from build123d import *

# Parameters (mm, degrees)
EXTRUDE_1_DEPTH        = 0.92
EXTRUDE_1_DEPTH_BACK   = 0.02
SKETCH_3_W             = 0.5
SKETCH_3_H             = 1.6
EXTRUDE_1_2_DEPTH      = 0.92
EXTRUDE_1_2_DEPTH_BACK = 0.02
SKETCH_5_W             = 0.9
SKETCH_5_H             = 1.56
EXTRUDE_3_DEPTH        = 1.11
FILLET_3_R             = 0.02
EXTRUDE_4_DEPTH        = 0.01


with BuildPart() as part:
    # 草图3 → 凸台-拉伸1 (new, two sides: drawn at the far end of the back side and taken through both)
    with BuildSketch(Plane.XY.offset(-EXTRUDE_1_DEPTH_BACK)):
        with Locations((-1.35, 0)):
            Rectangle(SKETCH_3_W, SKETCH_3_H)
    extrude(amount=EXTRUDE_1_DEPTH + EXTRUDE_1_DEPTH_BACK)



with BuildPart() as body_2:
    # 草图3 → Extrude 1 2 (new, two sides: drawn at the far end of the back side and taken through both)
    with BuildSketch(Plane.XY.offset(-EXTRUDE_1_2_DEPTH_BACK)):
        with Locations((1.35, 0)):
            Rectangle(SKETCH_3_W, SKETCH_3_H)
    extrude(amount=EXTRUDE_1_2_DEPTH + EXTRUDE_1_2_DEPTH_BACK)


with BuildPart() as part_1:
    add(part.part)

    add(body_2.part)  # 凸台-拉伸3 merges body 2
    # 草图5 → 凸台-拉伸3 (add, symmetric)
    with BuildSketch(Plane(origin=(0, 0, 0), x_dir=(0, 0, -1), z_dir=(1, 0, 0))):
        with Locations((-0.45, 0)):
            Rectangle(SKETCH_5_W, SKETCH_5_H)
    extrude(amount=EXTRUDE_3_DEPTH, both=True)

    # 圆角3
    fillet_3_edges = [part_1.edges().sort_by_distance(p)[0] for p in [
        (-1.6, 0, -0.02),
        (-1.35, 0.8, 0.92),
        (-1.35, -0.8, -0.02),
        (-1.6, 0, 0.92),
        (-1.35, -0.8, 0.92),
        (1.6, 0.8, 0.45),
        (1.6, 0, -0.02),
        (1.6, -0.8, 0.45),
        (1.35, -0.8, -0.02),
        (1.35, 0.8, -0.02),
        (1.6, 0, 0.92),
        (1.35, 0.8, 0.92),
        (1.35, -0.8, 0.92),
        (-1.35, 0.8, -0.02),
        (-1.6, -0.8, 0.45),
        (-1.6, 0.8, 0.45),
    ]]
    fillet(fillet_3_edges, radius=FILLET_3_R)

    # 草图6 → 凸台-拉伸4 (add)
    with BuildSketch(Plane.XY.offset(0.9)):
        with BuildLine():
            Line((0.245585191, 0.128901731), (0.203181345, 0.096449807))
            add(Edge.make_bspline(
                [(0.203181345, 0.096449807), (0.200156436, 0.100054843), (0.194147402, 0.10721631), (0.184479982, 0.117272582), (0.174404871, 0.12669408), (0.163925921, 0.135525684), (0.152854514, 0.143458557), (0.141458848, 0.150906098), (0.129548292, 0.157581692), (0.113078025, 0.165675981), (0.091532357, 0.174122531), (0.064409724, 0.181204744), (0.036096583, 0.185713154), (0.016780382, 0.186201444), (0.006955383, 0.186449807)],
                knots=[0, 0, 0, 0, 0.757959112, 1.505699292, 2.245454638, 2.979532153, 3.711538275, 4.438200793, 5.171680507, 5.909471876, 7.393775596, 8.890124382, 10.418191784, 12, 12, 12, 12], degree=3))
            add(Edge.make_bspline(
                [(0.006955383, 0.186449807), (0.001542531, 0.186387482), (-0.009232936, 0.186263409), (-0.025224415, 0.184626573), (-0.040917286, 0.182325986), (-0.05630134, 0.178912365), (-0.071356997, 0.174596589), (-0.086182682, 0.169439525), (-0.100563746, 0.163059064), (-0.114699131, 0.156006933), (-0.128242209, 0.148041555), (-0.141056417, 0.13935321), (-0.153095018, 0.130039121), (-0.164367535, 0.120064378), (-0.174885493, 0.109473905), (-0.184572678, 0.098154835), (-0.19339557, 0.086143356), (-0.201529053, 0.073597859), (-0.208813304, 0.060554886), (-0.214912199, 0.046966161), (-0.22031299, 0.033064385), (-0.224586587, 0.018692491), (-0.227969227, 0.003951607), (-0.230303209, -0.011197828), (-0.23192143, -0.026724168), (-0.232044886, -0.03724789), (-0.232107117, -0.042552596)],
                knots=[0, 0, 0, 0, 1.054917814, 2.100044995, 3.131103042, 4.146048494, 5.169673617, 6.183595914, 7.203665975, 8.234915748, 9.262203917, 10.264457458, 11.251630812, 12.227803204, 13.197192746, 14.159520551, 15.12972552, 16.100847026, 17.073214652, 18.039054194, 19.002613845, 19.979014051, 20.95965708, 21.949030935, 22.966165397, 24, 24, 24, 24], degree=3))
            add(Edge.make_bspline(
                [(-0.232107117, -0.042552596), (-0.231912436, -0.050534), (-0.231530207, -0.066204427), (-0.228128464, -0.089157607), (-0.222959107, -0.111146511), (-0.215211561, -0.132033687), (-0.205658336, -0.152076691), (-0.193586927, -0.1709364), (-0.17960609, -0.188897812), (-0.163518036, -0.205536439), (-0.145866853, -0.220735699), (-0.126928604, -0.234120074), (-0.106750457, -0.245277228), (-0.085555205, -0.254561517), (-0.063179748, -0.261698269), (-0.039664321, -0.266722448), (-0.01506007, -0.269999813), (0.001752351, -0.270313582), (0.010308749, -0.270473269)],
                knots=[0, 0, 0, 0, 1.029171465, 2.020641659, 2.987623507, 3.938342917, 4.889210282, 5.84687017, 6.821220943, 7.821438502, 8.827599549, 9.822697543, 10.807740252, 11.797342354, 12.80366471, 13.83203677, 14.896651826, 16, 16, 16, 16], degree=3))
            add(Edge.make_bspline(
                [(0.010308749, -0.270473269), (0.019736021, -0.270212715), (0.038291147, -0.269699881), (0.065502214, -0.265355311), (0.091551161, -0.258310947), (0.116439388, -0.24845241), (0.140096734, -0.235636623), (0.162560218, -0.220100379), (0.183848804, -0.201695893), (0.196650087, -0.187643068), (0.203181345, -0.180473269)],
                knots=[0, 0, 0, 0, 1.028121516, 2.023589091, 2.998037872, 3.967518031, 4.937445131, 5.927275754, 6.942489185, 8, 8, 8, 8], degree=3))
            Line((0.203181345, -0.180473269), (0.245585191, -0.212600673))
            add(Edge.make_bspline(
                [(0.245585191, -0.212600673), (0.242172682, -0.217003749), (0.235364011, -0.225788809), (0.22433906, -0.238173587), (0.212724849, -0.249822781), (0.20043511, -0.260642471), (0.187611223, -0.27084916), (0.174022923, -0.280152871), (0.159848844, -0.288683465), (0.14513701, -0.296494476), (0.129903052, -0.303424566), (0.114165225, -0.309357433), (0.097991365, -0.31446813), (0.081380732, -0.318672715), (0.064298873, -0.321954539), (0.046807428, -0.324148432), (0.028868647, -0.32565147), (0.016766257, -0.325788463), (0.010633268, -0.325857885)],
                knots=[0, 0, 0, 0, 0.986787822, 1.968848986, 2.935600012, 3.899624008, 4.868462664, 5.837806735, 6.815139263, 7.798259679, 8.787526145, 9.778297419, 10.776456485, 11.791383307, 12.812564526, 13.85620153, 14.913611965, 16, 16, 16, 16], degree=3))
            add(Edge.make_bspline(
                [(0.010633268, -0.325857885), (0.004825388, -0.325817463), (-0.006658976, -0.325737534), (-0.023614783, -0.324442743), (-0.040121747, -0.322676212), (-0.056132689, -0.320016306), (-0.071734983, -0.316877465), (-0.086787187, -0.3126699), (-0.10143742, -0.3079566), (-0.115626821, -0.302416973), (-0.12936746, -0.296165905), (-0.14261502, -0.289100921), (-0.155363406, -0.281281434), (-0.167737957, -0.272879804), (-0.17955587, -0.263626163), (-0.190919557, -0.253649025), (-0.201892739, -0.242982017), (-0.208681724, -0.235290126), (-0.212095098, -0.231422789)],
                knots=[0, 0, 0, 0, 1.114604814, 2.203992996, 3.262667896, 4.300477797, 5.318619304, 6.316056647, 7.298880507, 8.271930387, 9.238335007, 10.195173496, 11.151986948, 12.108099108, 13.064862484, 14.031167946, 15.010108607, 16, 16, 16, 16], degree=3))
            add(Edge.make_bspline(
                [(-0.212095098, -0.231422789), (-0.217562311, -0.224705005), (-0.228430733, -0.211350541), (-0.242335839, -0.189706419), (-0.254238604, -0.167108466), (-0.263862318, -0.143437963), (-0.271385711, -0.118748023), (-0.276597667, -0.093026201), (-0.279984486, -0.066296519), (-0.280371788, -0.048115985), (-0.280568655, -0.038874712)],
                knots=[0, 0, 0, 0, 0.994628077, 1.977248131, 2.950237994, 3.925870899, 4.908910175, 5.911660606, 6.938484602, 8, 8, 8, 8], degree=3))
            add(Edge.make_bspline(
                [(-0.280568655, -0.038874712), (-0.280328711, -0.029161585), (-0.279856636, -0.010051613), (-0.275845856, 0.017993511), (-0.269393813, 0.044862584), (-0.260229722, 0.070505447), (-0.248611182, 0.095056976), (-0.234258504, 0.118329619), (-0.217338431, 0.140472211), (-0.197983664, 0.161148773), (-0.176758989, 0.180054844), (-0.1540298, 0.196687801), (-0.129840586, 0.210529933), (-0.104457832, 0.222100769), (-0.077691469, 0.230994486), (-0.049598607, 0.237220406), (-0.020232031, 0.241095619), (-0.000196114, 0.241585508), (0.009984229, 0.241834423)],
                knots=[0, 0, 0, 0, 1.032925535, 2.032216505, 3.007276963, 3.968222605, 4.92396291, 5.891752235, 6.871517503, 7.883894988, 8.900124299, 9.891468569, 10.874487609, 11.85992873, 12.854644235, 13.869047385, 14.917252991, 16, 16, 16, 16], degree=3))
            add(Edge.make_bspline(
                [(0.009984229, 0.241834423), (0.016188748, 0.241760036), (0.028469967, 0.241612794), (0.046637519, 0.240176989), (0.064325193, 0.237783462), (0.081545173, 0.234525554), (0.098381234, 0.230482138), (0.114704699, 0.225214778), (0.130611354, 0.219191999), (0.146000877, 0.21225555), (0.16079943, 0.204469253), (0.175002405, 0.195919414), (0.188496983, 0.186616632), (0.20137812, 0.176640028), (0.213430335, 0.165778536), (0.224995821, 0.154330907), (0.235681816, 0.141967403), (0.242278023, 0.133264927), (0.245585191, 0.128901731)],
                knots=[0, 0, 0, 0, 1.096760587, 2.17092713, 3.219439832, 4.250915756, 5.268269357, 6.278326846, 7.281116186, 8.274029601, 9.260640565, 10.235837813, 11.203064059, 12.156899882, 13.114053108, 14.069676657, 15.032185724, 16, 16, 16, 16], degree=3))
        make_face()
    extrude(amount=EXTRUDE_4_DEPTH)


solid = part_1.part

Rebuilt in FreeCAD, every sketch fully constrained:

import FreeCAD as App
import Part
import Sketcher
from FreeCAD import Vector


def edges_at(feature, points):
    """Names of the edges that pass closest to the given points."""
    edges = feature.Shape.Edges
    near = lambda p: min(range(len(edges)), key=lambda i: edges[i].distToShape(Part.Vertex(*p))[0])
    return sorted({f"Edge{near(p) + 1}" for p in points})

doc = App.newDocument("Part")
body = doc.addObject("PartDesign::Body", "Body")

# Sketch on XY plane
sketch1 = doc.addObject("Sketcher::SketchObject", "Sketch")
body.addObject(sketch1)
sketch1.AttachmentSupport = (doc.XY_Plane, [""])
sketch1.MapMode = "FlatFace"
sketch1.addGeometry(Part.LineSegment(Vector(-1.6, 0.8, 0), Vector(-1.6, -0.8, 0)), False)
sketch1.addGeometry(Part.LineSegment(Vector(-1.6, -0.8, 0), Vector(-1.1, -0.8, 0)), False)
sketch1.addGeometry(Part.LineSegment(Vector(-1.1, -0.8, 0), Vector(-1.1, 0.8, 0)), False)
sketch1.addGeometry(Part.LineSegment(Vector(-1.1, 0.8, 0), Vector(-1.6, 0.8, 0)), False)
sketch1.addConstraint(Sketcher.Constraint("Coincident", 0, 2, 1, 1))
sketch1.addConstraint(Sketcher.Constraint("Coincident", 1, 2, 2, 1))
sketch1.addConstraint(Sketcher.Constraint("Coincident", 2, 2, 3, 1))
sketch1.addConstraint(Sketcher.Constraint("Coincident", 3, 2, 0, 1))
sketch1.addConstraint(Sketcher.Constraint("Vertical", 0))
sketch1.addConstraint(Sketcher.Constraint("Horizontal", 1))
sketch1.addConstraint(Sketcher.Constraint("Vertical", 2))
sketch1.addConstraint(Sketcher.Constraint("Horizontal", 3))
sketch1.addConstraint(Sketcher.Constraint("DistanceX", 1, 1, 1, 2, 0.5))
sketch1.addConstraint(Sketcher.Constraint("DistanceY", 0, 2, 0, 1, 1.6))
sketch1.addConstraint(Sketcher.Constraint("DistanceX", 0, 2, -1, 1, 1.6))
sketch1.addConstraint(Sketcher.Constraint("DistanceY", 0, 2, -1, 1, 0.8))
pad1 = doc.addObject("PartDesign::Pad", "Pad")
body.addObject(pad1)
pad1.Profile = sketch1
pad1.Type = "TwoLengths"
pad1.Length = 0.92
pad1.Length2 = 0.02
body2 = doc.addObject("PartDesign::Body", "Body001")

# Sketch on XY plane
sketch2 = doc.addObject("Sketcher::SketchObject", "Sketch001")
body2.addObject(sketch2)
sketch2.AttachmentSupport = (doc.getObject("XY_Plane001"), [""])
sketch2.MapMode = "FlatFace"
sketch2.addGeometry(Part.LineSegment(Vector(1.1, 0.8, 0), Vector(1.1, -0.8, 0)), False)
sketch2.addGeometry(Part.LineSegment(Vector(1.1, -0.8, 0), Vector(1.6, -0.8, 0)), False)
sketch2.addGeometry(Part.LineSegment(Vector(1.6, -0.8, 0), Vector(1.6, 0.8, 0)), False)
sketch2.addGeometry(Part.LineSegment(Vector(1.6, 0.8, 0), Vector(1.1, 0.8, 0)), False)
sketch2.addConstraint(Sketcher.Constraint("Coincident", 0, 2, 1, 1))
sketch2.addConstraint(Sketcher.Constraint("Coincident", 1, 2, 2, 1))
sketch2.addConstraint(Sketcher.Constraint("Coincident", 2, 2, 3, 1))
sketch2.addConstraint(Sketcher.Constraint("Coincident", 3, 2, 0, 1))
sketch2.addConstraint(Sketcher.Constraint("Vertical", 0))
sketch2.addConstraint(Sketcher.Constraint("Horizontal", 1))
sketch2.addConstraint(Sketcher.Constraint("Vertical", 2))
sketch2.addConstraint(Sketcher.Constraint("Horizontal", 3))
sketch2.addConstraint(Sketcher.Constraint("DistanceX", 1, 1, 1, 2, 0.5))
sketch2.addConstraint(Sketcher.Constraint("DistanceY", 0, 2, 0, 1, 1.6))
sketch2.addConstraint(Sketcher.Constraint("DistanceX", -1, 1, 0, 2, 1.1))
sketch2.addConstraint(Sketcher.Constraint("DistanceY", 0, 2, -1, 1, 0.8))
pad2 = doc.addObject("PartDesign::Pad", "Pad001")
body2.addObject(pad2)
pad2.Profile = sketch2
pad2.Type = "TwoLengths"
pad2.Length = 0.92
pad2.Length2 = 0.02
body.AllowCompound = True
doc.recompute()

boolean = doc.addObject("PartDesign::Boolean", "Boolean")
body.addObject(boolean)
boolean.Type = "Fuse"
boolean.addObjects([body2])

# Sketch on YZ plane
sketch3 = doc.addObject("Sketcher::SketchObject", "Sketch002")
body.addObject(sketch3)
sketch3.AttachmentSupport = (doc.YZ_Plane, [""])
sketch3.MapMode = "FlatFace"
sketch3.addGeometry(Part.LineSegment(Vector(0.8, 0.9, 0), Vector(-0.8, 0.9, 0)), False)
sketch3.addGeometry(Part.LineSegment(Vector(-0.8, 0.9, 0), Vector(-0.8, 0, 0)), False)
sketch3.addGeometry(Part.LineSegment(Vector(-0.8, 0, 0), Vector(0.8, 0, 0)), False)
sketch3.addGeometry(Part.LineSegment(Vector(0.8, 0, 0), Vector(0.8, 0.9, 0)), False)
sketch3.addConstraint(Sketcher.Constraint("Coincident", 0, 2, 1, 1))
sketch3.addConstraint(Sketcher.Constraint("Coincident", 1, 2, 2, 1))
sketch3.addConstraint(Sketcher.Constraint("Coincident", 2, 2, 3, 1))
sketch3.addConstraint(Sketcher.Constraint("Coincident", 3, 2, 0, 1))
sketch3.addConstraint(Sketcher.Constraint("Horizontal", 0))
sketch3.addConstraint(Sketcher.Constraint("Vertical", 1))
sketch3.addConstraint(Sketcher.Constraint("Horizontal", 2))
sketch3.addConstraint(Sketcher.Constraint("Vertical", 3))
sketch3.addConstraint(Sketcher.Constraint("Symmetric", 1, 2, 2, 2, -1, 1))
sketch3.addConstraint(Sketcher.Constraint("DistanceY", 1, 2, 1, 1, 0.9))
sketch3.addConstraint(Sketcher.Constraint("DistanceX", 0, 2, 0, 1, 1.56))
pad3 = doc.addObject("PartDesign::Pad", "Pad002")
body.addObject(pad3)
pad3.Profile = sketch3
pad3.Length = 2.22
pad3.Midplane = True
doc.recompute()

fillet = doc.addObject("PartDesign::Fillet", "Fillet")
body.addObject(fillet)
fillet.Base = (pad3, edges_at(pad3, [
    (-1.6, 0, -0.02),
    (-1.35, 0.8, 0.92),
    (-1.35, -0.8, -0.02),
    (-1.6, 0, 0.92),
    (-1.35, -0.8, 0.92),
    (1.6, 0.8, 0.45),
    (1.6, 0, -0.02),
    (1.6, -0.8, 0.45),
    (1.35, -0.8, -0.02),
    (1.35, 0.8, -0.02),
    (1.6, 0, 0.92),
    (1.35, 0.8, 0.92),
    (1.35, -0.8, 0.92),
    (-1.35, 0.8, -0.02),
    (-1.6, -0.8, 0.45),
    (-1.6, 0.8, 0.45),
]))
fillet.Radius = 0.02

# Sketch on XY plane
sketch4 = doc.addObject("Sketcher::SketchObject", "Sketch003")
body.addObject(sketch4)
sketch4.AttachmentSupport = (doc.XY_Plane, [""])
sketch4.MapMode = "FlatFace"
sketch4.AttachmentOffset = App.Placement(Vector(0, 0, 0.9), App.Rotation())
sketch4.addGeometry(Part.LineSegment(Vector(0.203181, 0.09645, 0), Vector(0.245585, 0.128902, 0)), False)
sketch4.addGeometry(Part.BSplineCurve([Vector(0.009984, 0.241834, 0), Vector(0.016189, 0.24176, 0), Vector(0.02847, 0.241613, 0), Vector(0.046638, 0.240177, 0), Vector(0.064325, 0.237783, 0), Vector(0.081545, 0.234526, 0), Vector(0.098381, 0.230482, 0), Vector(0.114705, 0.225215, 0), Vector(0.130611, 0.219192, 0), Vector(0.146001, 0.212256, 0), Vector(0.160799, 0.204469, 0), Vector(0.175002, 0.195919, 0), Vector(0.188497, 0.186617, 0), Vector(0.201378, 0.17664, 0), Vector(0.21343, 0.165779, 0), Vector(0.224996, 0.154331, 0), Vector(0.235682, 0.141967, 0), Vector(0.242278, 0.133265, 0), Vector(0.245585, 0.128902, 0)], [4, 1, 1, 1, 1, 1, 1, 1, 1, 1, 1, 1, 1, 1, 1, 1, 4], [0, 1.096760587, 2.17092713, 3.219439832, 4.250915756, 5.268269357, 6.278326846, 7.281116186, 8.274029601, 9.260640565, 10.235837813, 11.203064059, 12.156899882, 13.114053108, 14.069676657, 15.032185724, 16], False, 3, [1, 1, 1, 1, 1, 1, 1, 1, 1, 1, 1, 1, 1, 1, 1, 1, 1, 1, 1], False), False)
sketch4.addGeometry(Part.BSplineCurve([Vector(-0.280569, -0.038875, 0), Vector(-0.280329, -0.029162, 0), Vector(-0.279857, -0.010052, 0), Vector(-0.275846, 0.017994, 0), Vector(-0.269394, 0.044863, 0), Vector(-0.26023, 0.070505, 0), Vector(-0.248611, 0.095057, 0), Vector(-0.234259, 0.11833, 0), Vector(-0.217338, 0.140472, 0), Vector(-0.197984, 0.161149, 0), Vector(-0.176759, 0.180055, 0), Vector(-0.15403, 0.196688, 0), Vector(-0.129841, 0.21053, 0), Vector(-0.104458, 0.222101, 0), Vector(-0.077691, 0.230994, 0), Vector(-0.049599, 0.23722, 0), Vector(-0.020232, 0.241096, 0), Vector(-0.000196, 0.241586, 0), Vector(0.009984, 0.241834, 0)], [4, 1, 1, 1, 1, 1, 1, 1, 1, 1, 1, 1, 1, 1, 1, 1, 4], [0, 1.032925535, 2.032216505, 3.007276963, 3.968222605, 4.92396291, 5.891752235, 6.871517503, 7.883894988, 8.900124299, 9.891468569, 10.874487609, 11.85992873, 12.854644235, 13.869047385, 14.917252991, 16], False, 3, [1, 1, 1, 1, 1, 1, 1, 1, 1, 1, 1, 1, 1, 1, 1, 1, 1, 1, 1], False), False)
sketch4.addGeometry(Part.BSplineCurve([Vector(-0.212095, -0.231423, 0), Vector(-0.217562, -0.224705, 0), Vector(-0.228431, -0.211351, 0), Vector(-0.242336, -0.189706, 0), Vector(-0.254239, -0.167108, 0), Vector(-0.263862, -0.143438, 0), Vector(-0.271386, -0.118748, 0), Vector(-0.276598, -0.093026, 0), Vector(-0.279984, -0.066297, 0), Vector(-0.280372, -0.048116, 0), Vector(-0.280569, -0.038875, 0)], [4, 1, 1, 1, 1, 1, 1, 1, 4], [0, 0.994628077, 1.977248131, 2.950237994, 3.925870899, 4.908910175, 5.911660606, 6.938484602, 8], False, 3, [1, 1, 1, 1, 1, 1, 1, 1, 1, 1, 1], False), False)
sketch4.addGeometry(Part.BSplineCurve([Vector(0.010633, -0.325858, 0), Vector(0.004825, -0.325817, 0), Vector(-0.006659, -0.325738, 0), Vector(-0.023615, -0.324443, 0), Vector(-0.040122, -0.322676, 0), Vector(-0.056133, -0.320016, 0), Vector(-0.071735, -0.316877, 0), Vector(-0.086787, -0.31267, 0), Vector(-0.101437, -0.307957, 0), Vector(-0.115627, -0.302417, 0), Vector(-0.129367, -0.296166, 0), Vector(-0.142615, -0.289101, 0), Vector(-0.155363, -0.281281, 0), Vector(-0.167738, -0.27288, 0), Vector(-0.179556, -0.263626, 0), Vector(-0.19092, -0.253649, 0), Vector(-0.201893, -0.242982, 0), Vector(-0.208682, -0.23529, 0), Vector(-0.212095, -0.231423, 0)], [4, 1, 1, 1, 1, 1, 1, 1, 1, 1, 1, 1, 1, 1, 1, 1, 4], [0, 1.114604814, 2.203992996, 3.262667896, 4.300477797, 5.318619304, 6.316056647, 7.298880507, 8.271930387, 9.238335007, 10.195173496, 11.151986948, 12.108099108, 13.064862484, 14.031167946, 15.010108607, 16], False, 3, [1, 1, 1, 1, 1, 1, 1, 1, 1, 1, 1, 1, 1, 1, 1, 1, 1, 1, 1], False), False)
sketch4.addGeometry(Part.BSplineCurve([Vector(0.245585, -0.212601, 0), Vector(0.242173, -0.217004, 0), Vector(0.235364, -0.225789, 0), Vector(0.224339, -0.238174, 0), Vector(0.212725, -0.249823, 0), Vector(0.200435, -0.260642, 0), Vector(0.187611, -0.270849, 0), Vector(0.174023, -0.280153, 0), Vector(0.159849, -0.288683, 0), Vector(0.145137, -0.296494, 0), Vector(0.129903, -0.303425, 0), Vector(0.114165, -0.309357, 0), Vector(0.097991, -0.314468, 0), Vector(0.081381, -0.318673, 0), Vector(0.064299, -0.321955, 0), Vector(0.046807, -0.324148, 0), Vector(0.028869, -0.325651, 0), Vector(0.016766, -0.325788, 0), Vector(0.010633, -0.325858, 0)], [4, 1, 1, 1, 1, 1, 1, 1, 1, 1, 1, 1, 1, 1, 1, 1, 4], [0, 0.986787822, 1.968848986, 2.935600012, 3.899624008, 4.868462664, 5.837806735, 6.815139263, 7.798259679, 8.787526145, 9.778297419, 10.776456485, 11.791383307, 12.812564526, 13.85620153, 14.913611965, 16], False, 3, [1, 1, 1, 1, 1, 1, 1, 1, 1, 1, 1, 1, 1, 1, 1, 1, 1, 1, 1], False), False)
sketch4.addGeometry(Part.LineSegment(Vector(0.245585, -0.212601, 0), Vector(0.203181, -0.180473, 0)), False)
sketch4.addGeometry(Part.BSplineCurve([Vector(0.010309, -0.270473, 0), Vector(0.019736, -0.270213, 0), Vector(0.038291, -0.2697, 0), Vector(0.065502, -0.265355, 0), Vector(0.091551, -0.258311, 0), Vector(0.116439, -0.248452, 0), Vector(0.140097, -0.235637, 0), Vector(0.16256, -0.2201, 0), Vector(0.183849, -0.201696, 0), Vector(0.19665, -0.187643, 0), Vector(0.203181, -0.180473, 0)], [4, 1, 1, 1, 1, 1, 1, 1, 4], [0, 1.028121516, 2.023589091, 2.998037872, 3.967518031, 4.937445131, 5.927275754, 6.942489185, 8], False, 3, [1, 1, 1, 1, 1, 1, 1, 1, 1, 1, 1], False), False)
sketch4.addGeometry(Part.BSplineCurve([Vector(-0.232107, -0.042553, 0), Vector(-0.231912, -0.050534, 0), Vector(-0.23153, -0.066204, 0), Vector(-0.228128, -0.089158, 0), Vector(-0.222959, -0.111147, 0), Vector(-0.215212, -0.132034, 0), Vector(-0.205658, -0.152077, 0), Vector(-0.193587, -0.170936, 0), Vector(-0.179606, -0.188898, 0), Vector(-0.163518, -0.205536, 0), Vector(-0.145867, -0.220736, 0), Vector(-0.126929, -0.23412, 0), Vector(-0.10675, -0.245277, 0), Vector(-0.085555, -0.254562, 0), Vector(-0.06318, -0.261698, 0), Vector(-0.039664, -0.266722, 0), Vector(-0.01506, -0.27, 0), Vector(0.001752, -0.270314, 0), Vector(0.010309, -0.270473, 0)], [4, 1, 1, 1, 1, 1, 1, 1, 1, 1, 1, 1, 1, 1, 1, 1, 4], [0, 1.029171465, 2.020641659, 2.987623507, 3.938342917, 4.889210282, 5.84687017, 6.821220943, 7.821438502, 8.827599549, 9.822697543, 10.807740252, 11.797342354, 12.80366471, 13.83203677, 14.896651826, 16], False, 3, [1, 1, 1, 1, 1, 1, 1, 1, 1, 1, 1, 1, 1, 1, 1, 1, 1, 1, 1], False), False)
sketch4.addGeometry(Part.BSplineCurve([Vector(0.006955, 0.18645, 0), Vector(0.001543, 0.186387, 0), Vector(-0.009233, 0.186263, 0), Vector(-0.025224, 0.184627, 0), Vector(-0.040917, 0.182326, 0), Vector(-0.056301, 0.178912, 0), Vector(-0.071357, 0.174597, 0), Vector(-0.086183, 0.16944, 0), Vector(-0.100564, 0.163059, 0), Vector(-0.114699, 0.156007, 0), Vector(-0.128242, 0.148042, 0), Vector(-0.141056, 0.139353, 0), Vector(-0.153095, 0.130039, 0), Vector(-0.164368, 0.120064, 0), Vector(-0.174885, 0.109474, 0), Vector(-0.184573, 0.098155, 0), Vector(-0.193396, 0.086143, 0), Vector(-0.201529, 0.073598, 0), Vector(-0.208813, 0.060555, 0), Vector(-0.214912, 0.046966, 0), Vector(-0.220313, 0.033064, 0), Vector(-0.224587, 0.018692, 0), Vector(-0.227969, 0.003952, 0), Vector(-0.230303, -0.011198, 0), Vector(-0.231921, -0.026724, 0), Vector(-0.232045, -0.037248, 0), Vector(-0.232107, -0.042553, 0)], [4, 1, 1, 1, 1, 1, 1, 1, 1, 1, 1, 1, 1, 1, 1, 1, 1, 1, 1, 1, 1, 1, 1, 1, 4], [0, 1.054917814, 2.100044995, 3.131103042, 4.146048494, 5.169673617, 6.183595914, 7.203665975, 8.234915748, 9.262203917, 10.264457458, 11.251630812, 12.227803204, 13.197192746, 14.159520551, 15.12972552, 16.100847026, 17.073214652, 18.039054194, 19.002613845, 19.979014051, 20.95965708, 21.949030935, 22.966165397, 24], False, 3, [1, 1, 1, 1, 1, 1, 1, 1, 1, 1, 1, 1, 1, 1, 1, 1, 1, 1, 1, 1, 1, 1, 1, 1, 1, 1, 1], False), False)
sketch4.addGeometry(Part.BSplineCurve([Vector(0.203181, 0.09645, 0), Vector(0.200156, 0.100055, 0), Vector(0.194147, 0.107216, 0), Vector(0.18448, 0.117273, 0), Vector(0.174405, 0.126694, 0), Vector(0.163926, 0.135526, 0), Vector(0.152855, 0.143459, 0), Vector(0.141459, 0.150906, 0), Vector(0.129548, 0.157582, 0), Vector(0.113078, 0.165676, 0), Vector(0.091532, 0.174123, 0), Vector(0.06441, 0.181205, 0), Vector(0.036097, 0.185713, 0), Vector(0.01678, 0.186201, 0), Vector(0.006955, 0.18645, 0)], [4, 1, 1, 1, 1, 1, 1, 1, 1, 1, 1, 1, 4], [0, 0.757959112, 1.505699292, 2.245454638, 2.979532153, 3.711538275, 4.438200793, 5.171680507, 5.909471876, 7.393775596, 8.890124382, 10.418191784, 12], False, 3, [1, 1, 1, 1, 1, 1, 1, 1, 1, 1, 1, 1, 1, 1, 1], False), False)
sketch4.addConstraint(Sketcher.Constraint("Block", 1))
sketch4.addConstraint(Sketcher.Constraint("Block", 2))
sketch4.addConstraint(Sketcher.Constraint("Block", 3))
sketch4.addConstraint(Sketcher.Constraint("Block", 4))
sketch4.addConstraint(Sketcher.Constraint("Block", 5))
sketch4.addConstraint(Sketcher.Constraint("Block", 7))
sketch4.addConstraint(Sketcher.Constraint("Block", 8))
sketch4.addConstraint(Sketcher.Constraint("Block", 9))
sketch4.addConstraint(Sketcher.Constraint("Block", 10))
sketch4.addConstraint(Sketcher.Constraint("Coincident", 0, 2, 1, 2))
sketch4.addConstraint(Sketcher.Constraint("Coincident", 5, 1, 6, 1))
sketch4.addConstraint(Sketcher.Constraint("Coincident", 6, 2, 7, 2))
sketch4.addConstraint(Sketcher.Constraint("Coincident", 10, 1, 0, 1))
pad4 = doc.addObject("PartDesign::Pad", "Pad003")
body.addObject(pad4)
pad4.Profile = sketch4
pad4.Length = 0.01

doc.recompute()
